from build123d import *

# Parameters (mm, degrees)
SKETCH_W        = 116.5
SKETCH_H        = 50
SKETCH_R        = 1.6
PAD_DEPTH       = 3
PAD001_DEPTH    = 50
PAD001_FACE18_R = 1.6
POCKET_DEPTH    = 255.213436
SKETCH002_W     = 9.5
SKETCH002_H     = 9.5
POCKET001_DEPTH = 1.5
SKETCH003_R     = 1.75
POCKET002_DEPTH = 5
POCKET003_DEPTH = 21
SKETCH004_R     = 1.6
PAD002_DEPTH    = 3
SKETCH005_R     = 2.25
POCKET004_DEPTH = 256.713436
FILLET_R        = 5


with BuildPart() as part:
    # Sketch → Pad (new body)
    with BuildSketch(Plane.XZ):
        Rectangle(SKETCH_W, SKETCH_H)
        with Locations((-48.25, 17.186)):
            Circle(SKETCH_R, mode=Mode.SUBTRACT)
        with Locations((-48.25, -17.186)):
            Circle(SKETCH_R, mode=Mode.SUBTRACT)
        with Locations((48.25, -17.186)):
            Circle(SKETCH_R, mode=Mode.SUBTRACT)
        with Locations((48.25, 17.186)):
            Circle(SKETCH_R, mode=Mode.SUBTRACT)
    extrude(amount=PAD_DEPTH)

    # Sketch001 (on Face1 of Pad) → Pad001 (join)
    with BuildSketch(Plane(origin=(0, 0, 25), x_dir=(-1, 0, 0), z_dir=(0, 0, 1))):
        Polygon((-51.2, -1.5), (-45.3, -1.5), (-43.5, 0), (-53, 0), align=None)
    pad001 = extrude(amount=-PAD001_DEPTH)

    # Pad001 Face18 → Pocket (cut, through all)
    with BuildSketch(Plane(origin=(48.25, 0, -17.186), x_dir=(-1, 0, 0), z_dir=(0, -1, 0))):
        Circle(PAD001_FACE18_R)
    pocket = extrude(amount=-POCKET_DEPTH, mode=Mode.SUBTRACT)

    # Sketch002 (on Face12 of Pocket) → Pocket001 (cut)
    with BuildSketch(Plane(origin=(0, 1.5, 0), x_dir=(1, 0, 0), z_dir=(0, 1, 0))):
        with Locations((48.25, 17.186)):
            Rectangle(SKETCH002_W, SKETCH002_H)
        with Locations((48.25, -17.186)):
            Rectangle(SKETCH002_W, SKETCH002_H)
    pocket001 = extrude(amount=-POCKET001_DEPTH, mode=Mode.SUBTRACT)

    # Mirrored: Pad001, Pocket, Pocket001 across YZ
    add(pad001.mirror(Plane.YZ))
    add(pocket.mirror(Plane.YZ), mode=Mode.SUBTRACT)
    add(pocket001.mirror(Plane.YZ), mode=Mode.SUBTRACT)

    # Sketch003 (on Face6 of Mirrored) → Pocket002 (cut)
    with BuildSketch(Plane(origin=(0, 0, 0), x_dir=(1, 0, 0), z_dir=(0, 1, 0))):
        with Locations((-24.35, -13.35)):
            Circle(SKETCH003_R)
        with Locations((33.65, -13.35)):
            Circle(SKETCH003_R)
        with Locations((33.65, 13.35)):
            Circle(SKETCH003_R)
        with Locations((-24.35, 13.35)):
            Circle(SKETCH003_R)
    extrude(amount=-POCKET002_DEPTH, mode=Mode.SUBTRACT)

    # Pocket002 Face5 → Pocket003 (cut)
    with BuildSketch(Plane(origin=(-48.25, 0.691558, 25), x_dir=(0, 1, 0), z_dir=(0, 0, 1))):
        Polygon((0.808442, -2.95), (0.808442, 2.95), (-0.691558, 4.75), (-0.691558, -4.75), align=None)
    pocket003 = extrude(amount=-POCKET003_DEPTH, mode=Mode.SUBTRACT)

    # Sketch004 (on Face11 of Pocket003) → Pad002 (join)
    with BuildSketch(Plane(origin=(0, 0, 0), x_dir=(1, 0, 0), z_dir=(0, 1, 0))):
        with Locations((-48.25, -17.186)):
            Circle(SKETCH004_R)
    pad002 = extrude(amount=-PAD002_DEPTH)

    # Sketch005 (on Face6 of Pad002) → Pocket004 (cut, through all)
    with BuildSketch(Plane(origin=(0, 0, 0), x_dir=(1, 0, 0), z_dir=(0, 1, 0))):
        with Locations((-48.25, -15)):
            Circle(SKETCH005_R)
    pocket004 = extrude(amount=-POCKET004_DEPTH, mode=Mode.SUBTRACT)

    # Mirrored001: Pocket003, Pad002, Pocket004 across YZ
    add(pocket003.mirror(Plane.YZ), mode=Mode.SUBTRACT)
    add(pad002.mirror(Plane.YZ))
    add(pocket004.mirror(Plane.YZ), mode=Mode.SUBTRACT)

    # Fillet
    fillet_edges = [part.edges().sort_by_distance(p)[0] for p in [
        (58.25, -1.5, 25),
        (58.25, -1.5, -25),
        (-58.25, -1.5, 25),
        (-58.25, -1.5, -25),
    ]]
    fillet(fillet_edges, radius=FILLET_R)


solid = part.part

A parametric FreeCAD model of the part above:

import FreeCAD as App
import Part
import Sketcher
Q = App.Units.Quantity


def edges_at(feature, points):
    """Names of the edges that pass closest to the given points."""
    edges = feature.Shape.Edges
    near = lambda p: min(range(len(edges)), key=lambda i: edges[i].distToShape(Part.Vertex(*p))[0])
    return sorted({f"Edge{near(p) + 1}" for p in points})

doc = App.newDocument("Part")
body = doc.addObject("PartDesign::Body", "Body")

sketch1 = doc.addObject("Sketcher::SketchObject", "Sketch")
body.addObject(sketch1)
sketch1.AttachmentSupport = (doc.XZ_Plane, [""])
sketch1.MapMode = "FlatFace"
sketch1.addGeometry([
    Part.LineSegment(App.Vector(-58.25, 25, 0), App.Vector(-58.25, -25, 0)),
    Part.LineSegment(App.Vector(-58.25, -25, 0), App.Vector(58.25, -25, 0)),
    Part.LineSegment(App.Vector(58.25, -25, 0), App.Vector(58.25, 25, 0)),
    Part.LineSegment(App.Vector(58.25, 25, 0), App.Vector(-58.25, 25, 0)),
    Part.Circle(App.Vector(-48.25, -17.186, 0), App.Vector(0, 0, 1), 1.6),
    Part.Circle(App.Vector(48.25, -17.186, 0), App.Vector(0, 0, 1), 1.6),
    Part.Circle(App.Vector(-48.25, 17.186, 0), App.Vector(0, 0, 1), 1.6),
    Part.Circle(App.Vector(48.25, 17.186, 0), App.Vector(0, 0, 1), 1.6),
], False)
sketch1.addConstraint([
    Sketcher.Constraint("Coincident", 0, 2, 1, 1),
    Sketcher.Constraint("Coincident", 1, 2, 2, 1),
    Sketcher.Constraint("Coincident", 2, 2, 3, 1),
    Sketcher.Constraint("Coincident", 3, 2, 0, 1),
    Sketcher.Constraint("Vertical", 0),
    Sketcher.Constraint("Horizontal", 1),
    Sketcher.Constraint("Vertical", 2),
    Sketcher.Constraint("Horizontal", 3),
    Sketcher.Constraint("Equal", 4, 5),
    Sketcher.Constraint("Equal", 5, 6),
    Sketcher.Constraint("Equal", 6, 7),
    Sketcher.Constraint("Symmetric", 5, 3, 6, 3, -1, 1),
    Sketcher.Constraint("Symmetric", 4, 3, 7, 3, -1, 1),
    Sketcher.Constraint("Symmetric", 0, 2, 2, 2, -1, 1),
    Sketcher.Constraint("Symmetric", 4, 3, 5, 3, -2),
    Sketcher.Constraint("Diameter", 4, Q("3.2 mm")),
    Sketcher.Constraint("DistanceY", 0, 2, 0, 1, Q("50 mm")),
    Sketcher.Constraint("DistanceX", 1, 1, 1, 2, Q("116.5 mm")),
    Sketcher.Constraint("DistanceX", 0, 2, 4, 3, Q("10 mm")),
    Sketcher.Constraint("DistanceY", 4, 3, -1, 1, Q("17.186 mm")),
])
pad1 = doc.addObject("PartDesign::Pad", "Pad")
body.addObject(pad1)
pad1.Profile = sketch1
pad1.Length = 3

sketch2 = doc.addObject("Sketcher::SketchObject", "Sketch001")
body.addObject(sketch2)
sketch2.AttachmentSupport = (doc.XY_Plane, [""])
sketch2.MapMode = "FlatFace"
sketch2.AttachmentOffset = App.Placement(App.Vector(0, 0, 25), App.Rotation())
sketch2.addGeometry([
    Part.LineSegment(App.Vector(51.2, 1.5, 0), App.Vector(45.3, 1.5, 0)),
    Part.LineSegment(App.Vector(45.3, 1.5, 0), App.Vector(43.5, 0, 0)),
    Part.LineSegment(App.Vector(43.5, 0, 0), App.Vector(53, 0, 0)),
    Part.LineSegment(App.Vector(53, 0, 0), App.Vector(51.2, 1.5, 0)),
], False)
sketch2.addConstraint([
    Sketcher.Constraint("Coincident", 0, 2, 1, 1),
    Sketcher.Constraint("Coincident", 1, 2, 2, 1),
    Sketcher.Constraint("Coincident", 2, 2, 3, 1),
    Sketcher.Constraint("Coincident", 3, 2, 0, 1),
    Sketcher.Constraint("Horizontal", 0),
    Sketcher.Constraint("Horizontal", 2),
    Sketcher.Constraint("PointOnObject", 1, 2, -1),
    Sketcher.Constraint("Equal", 1, 3),
    Sketcher.Constraint("DistanceX", 0, 2, 0, 1, Q("5.9 mm")),
    Sketcher.Constraint("DistanceX", 2, 1, 2, 2, Q("9.5 mm")),
    Sketcher.Constraint("DistanceX", -1, 1, 2, 2, Q("53 mm")),
    Sketcher.Constraint("DistanceY", -1, 1, 0, 2, Q("1.5 mm")),
])
pad2 = doc.addObject("PartDesign::Pad", "Pad001")
body.addObject(pad2)
pad2.Profile = sketch2
pad2.Length = 50
pad2.Reversed = True

sketch3 = doc.addObject("Sketcher::SketchObject", "Sketch002")
body.addObject(sketch3)
sketch3.AttachmentSupport = (doc.XZ_Plane, [""])
sketch3.MapMode = "FlatFace"
sketch3.addGeometry(Part.Circle(App.Vector(48.25, -17.186, 0), App.Vector(0, 0, 1), 1.6), False)
sketch3.addConstraint([
    Sketcher.Constraint("Diameter", 0, Q("3.2 mm")),
    Sketcher.Constraint("DistanceX", -1, 1, 0, 3, Q("48.25 mm")),
    Sketcher.Constraint("DistanceY", 0, 3, -1, 1, Q("17.186 mm")),
])
pocket1 = doc.addObject("PartDesign::Pocket", "Pocket")
body.addObject(pocket1)
pocket1.Profile = sketch3
pocket1.Type = "ThroughAll"

sketch4 = doc.addObject("Sketcher::SketchObject", "Sketch003")
body.addObject(sketch4)
sketch4.AttachmentSupport = (doc.XZ_Plane, [""])
sketch4.MapMode = "FlatFace"
sketch4.AttachmentOffset = App.Placement(App.Vector(0, 0, -1.5), App.Rotation())
sketch4.addGeometry([
    Part.LineSegment(App.Vector(43.5, -21.936, 0), App.Vector(43.5, -12.436, 0)),
    Part.LineSegment(App.Vector(43.5, -12.436, 0), App.Vector(53, -12.436, 0)),
    Part.LineSegment(App.Vector(53, -12.436, 0), App.Vector(53, -21.936, 0)),
    Part.LineSegment(App.Vector(53, -21.936, 0), App.Vector(43.5, -21.936, 0)),
    Part.LineSegment(App.Vector(43.5, 12.436, 0), App.Vector(43.5, 21.936, 0)),
    Part.LineSegment(App.Vector(43.5, 21.936, 0), App.Vector(53, 21.936, 0)),
    Part.LineSegment(App.Vector(53, 21.936, 0), App.Vector(53, 12.436, 0)),
    Part.LineSegment(App.Vector(53, 12.436, 0), App.Vector(43.5, 12.436, 0)),
], False)
sketch4.addConstraint([
    Sketcher.Constraint("Coincident", 0, 2, 1, 1),
    Sketcher.Constraint("Coincident", 1, 2, 2, 1),
    Sketcher.Constraint("Coincident", 2, 2, 3, 1),
    Sketcher.Constraint("Coincident", 3, 2, 0, 1),
    Sketcher.Constraint("Coincident", 4, 2, 5, 1),
    Sketcher.Constraint("Coincident", 5, 2, 6, 1),
    Sketcher.Constraint("Coincident", 6, 2, 7, 1),
    Sketcher.Constraint("Coincident", 7, 2, 4, 1),
    Sketcher.Constraint("Vertical", 0),
    Sketcher.Constraint("Horizontal", 1),
    Sketcher.Constraint("Vertical", 2),
    Sketcher.Constraint("Horizontal", 3),
    Sketcher.Constraint("Vertical", 4),
    Sketcher.Constraint("Horizontal", 5),
    Sketcher.Constraint("Vertical", 6),
    Sketcher.Constraint("Horizontal", 7),
    Sketcher.Constraint("Symmetric", 3, 2, 4, 2, -1),
    Sketcher.Constraint("Symmetric", 1, 2, 6, 2, -1),
    Sketcher.Constraint("Equal", 7, 0),
    Sketcher.Constraint("DistanceX", 1, 1, 1, 2, Q("9.5 mm")),
    Sketcher.Constraint("DistanceX", -1, 1, 1, 2, Q("53 mm")),
    Sketcher.Constraint("DistanceY", 0, 2, -1, 1, Q("12.436 mm")),
])
pocket2 = doc.addObject("PartDesign::Pocket", "Pocket001")
body.addObject(pocket2)
pocket2.Profile = sketch4
pocket2.Length = 1.5
pocket2.Reversed = True
doc.recompute()

mirrored = doc.addObject("PartDesign::Mirrored", "Mirrored")
body.addObject(mirrored)
mirrored.Originals = [pad2, pocket1, pocket2]
mirrored.MirrorPlane = (doc.YZ_Plane, [""])
body.Tip = mirrored

sketch5 = doc.addObject("Sketcher::SketchObject", "Sketch004")
body.addObject(sketch5)
sketch5.AttachmentSupport = (doc.XZ_Plane, [""])
sketch5.MapMode = "FlatFace"
sketch5.addGeometry([
    Part.Circle(App.Vector(-24.35, 13.35, 0), App.Vector(0, 0, 1), 1.75),
    Part.Circle(App.Vector(33.65, 13.35, 0), App.Vector(0, 0, 1), 1.75),
    Part.Circle(App.Vector(33.65, -13.35, 0), App.Vector(0, 0, 1), 1.75),
    Part.Circle(App.Vector(-24.35, -13.35, 0), App.Vector(0, 0, 1), 1.75),
], False)
sketch5.addConstraint([
    Sketcher.Constraint("Equal", 0, 1),
    Sketcher.Constraint("Equal", 1, 2),
    Sketcher.Constraint("Equal", 2, 3),
    Sketcher.Constraint("Symmetric", 1, 3, 2, 3, -1),
    Sketcher.Constraint("Symmetric", 0, 3, 3, 3, -1),
    Sketcher.Constraint("Horizontal", 0, 3, 1, 3),
    Sketcher.Constraint("Diameter", 0, Q("3.5 mm")),
    Sketcher.Constraint("DistanceX", 0, 3, 1, 3, Q("58 mm")),
    Sketcher.Constraint("DistanceY", 2, 3, 1, 3, Q("26.7 mm")),
    Sketcher.Constraint("DistanceX", 0, 3, -1, 1, Q("24.35 mm")),
])
pocket3 = doc.addObject("PartDesign::Pocket", "Pocket002")
body.addObject(pocket3)
pocket3.Profile = sketch5
pocket3.Length = 5
pocket3.Reversed = True

sketch6 = doc.addObject("Sketcher::SketchObject", "Sketch005")
body.addObject(sketch6)
sketch6.AttachmentSupport = (doc.XY_Plane, [""])
sketch6.MapMode = "FlatFace"
sketch6.AttachmentOffset = App.Placement(App.Vector(0, 0, 25), App.Rotation())
sketch6.addGeometry([
    Part.LineSegment(App.Vector(-45.3, 1.5, 0), App.Vector(-51.2, 1.5, 0)),
    Part.LineSegment(App.Vector(-51.2, 1.5, 0), App.Vector(-53, 0, 0)),
    Part.LineSegment(App.Vector(-53, 0, 0), App.Vector(-43.5, 0, 0)),
    Part.LineSegment(App.Vector(-43.5, 0, 0), App.Vector(-45.3, 1.5, 0)),
], False)
sketch6.addConstraint([
    Sketcher.Constraint("Coincident", 0, 2, 1, 1),
    Sketcher.Constraint("Coincident", 1, 2, 2, 1),
    Sketcher.Constraint("Coincident", 2, 2, 3, 1),
    Sketcher.Constraint("Coincident", 3, 2, 0, 1),
    Sketcher.Constraint("Horizontal", 0),
    Sketcher.Constraint("Horizontal", 2),
    Sketcher.Constraint("PointOnObject", 1, 2, -1),
    Sketcher.Constraint("Equal", 1, 3),
    Sketcher.Constraint("DistanceX", 0, 2, 0, 1, Q("5.9 mm")),
    Sketcher.Constraint("DistanceX", 2, 1, 2, 2, Q("9.5 mm")),
    Sketcher.Constraint("DistanceX", 1, 2, -1, 1, Q("53 mm")),
    Sketcher.Constraint("DistanceY", -1, 1, 0, 2, Q("1.5 mm")),
])
pocket4 = doc.addObject("PartDesign::Pocket", "Pocket003")
body.addObject(pocket4)
pocket4.Profile = sketch6
pocket4.Length = 21

sketch7 = doc.addObject("Sketcher::SketchObject", "Sketch006")
body.addObject(sketch7)
sketch7.AttachmentSupport = (doc.XZ_Plane, [""])
sketch7.MapMode = "FlatFace"
sketch7.addGeometry(Part.Circle(App.Vector(-48.25, 17.186, 0), App.Vector(0, 0, 1), 1.6), False)
sketch7.addConstraint([
    Sketcher.Constraint("Diameter", 0, Q("3.2 mm")),
    Sketcher.Constraint("DistanceX", 0, 3, -1, 1, Q("48.25 mm")),
    Sketcher.Constraint("DistanceY", -1, 1, 0, 3, Q("17.186 mm")),
])
pad3 = doc.addObject("PartDesign::Pad", "Pad002")
body.addObject(pad3)
pad3.Profile = sketch7
pad3.Length = 3

sketch8 = doc.addObject("Sketcher::SketchObject", "Sketch007")
body.addObject(sketch8)
sketch8.AttachmentSupport = (doc.XZ_Plane, [""])
sketch8.MapMode = "FlatFace"
sketch8.addGeometry(Part.Circle(App.Vector(-48.25, 15, 0), App.Vector(0, 0, 1), 2.25), False)
sketch8.addConstraint([
    Sketcher.Constraint("Diameter", 0, Q("4.5 mm")),
    Sketcher.Constraint("DistanceY", -1, 1, 0, 3, Q("15 mm")),
    Sketcher.Constraint("DistanceX", 0, 3, -1, 1, Q("48.25 mm")),
])
pocket5 = doc.addObject("PartDesign::Pocket", "Pocket004")
body.addObject(pocket5)
pocket5.Profile = sketch8
pocket5.Type = "ThroughAll"
pocket5.Reversed = True
doc.recompute()

mirrored2 = doc.addObject("PartDesign::Mirrored", "Mirrored001")
body.addObject(mirrored2)
mirrored2.Originals = [pocket4, pad3, pocket5]
mirrored2.MirrorPlane = (doc.YZ_Plane, [""])
body.Tip = mirrored2
doc.recompute()

fillet = doc.addObject("PartDesign::Fillet", "Fillet")
body.addObject(fillet)
fillet.Base = (mirrored2, edges_at(mirrored2, [
    (58.25, -1.5, 25),
    (58.25, -1.5, -25),
    (-58.25, -1.5, 25),
    (-58.25, -1.5, -25),
]))
fillet.Radius = 5

doc.recompute()
